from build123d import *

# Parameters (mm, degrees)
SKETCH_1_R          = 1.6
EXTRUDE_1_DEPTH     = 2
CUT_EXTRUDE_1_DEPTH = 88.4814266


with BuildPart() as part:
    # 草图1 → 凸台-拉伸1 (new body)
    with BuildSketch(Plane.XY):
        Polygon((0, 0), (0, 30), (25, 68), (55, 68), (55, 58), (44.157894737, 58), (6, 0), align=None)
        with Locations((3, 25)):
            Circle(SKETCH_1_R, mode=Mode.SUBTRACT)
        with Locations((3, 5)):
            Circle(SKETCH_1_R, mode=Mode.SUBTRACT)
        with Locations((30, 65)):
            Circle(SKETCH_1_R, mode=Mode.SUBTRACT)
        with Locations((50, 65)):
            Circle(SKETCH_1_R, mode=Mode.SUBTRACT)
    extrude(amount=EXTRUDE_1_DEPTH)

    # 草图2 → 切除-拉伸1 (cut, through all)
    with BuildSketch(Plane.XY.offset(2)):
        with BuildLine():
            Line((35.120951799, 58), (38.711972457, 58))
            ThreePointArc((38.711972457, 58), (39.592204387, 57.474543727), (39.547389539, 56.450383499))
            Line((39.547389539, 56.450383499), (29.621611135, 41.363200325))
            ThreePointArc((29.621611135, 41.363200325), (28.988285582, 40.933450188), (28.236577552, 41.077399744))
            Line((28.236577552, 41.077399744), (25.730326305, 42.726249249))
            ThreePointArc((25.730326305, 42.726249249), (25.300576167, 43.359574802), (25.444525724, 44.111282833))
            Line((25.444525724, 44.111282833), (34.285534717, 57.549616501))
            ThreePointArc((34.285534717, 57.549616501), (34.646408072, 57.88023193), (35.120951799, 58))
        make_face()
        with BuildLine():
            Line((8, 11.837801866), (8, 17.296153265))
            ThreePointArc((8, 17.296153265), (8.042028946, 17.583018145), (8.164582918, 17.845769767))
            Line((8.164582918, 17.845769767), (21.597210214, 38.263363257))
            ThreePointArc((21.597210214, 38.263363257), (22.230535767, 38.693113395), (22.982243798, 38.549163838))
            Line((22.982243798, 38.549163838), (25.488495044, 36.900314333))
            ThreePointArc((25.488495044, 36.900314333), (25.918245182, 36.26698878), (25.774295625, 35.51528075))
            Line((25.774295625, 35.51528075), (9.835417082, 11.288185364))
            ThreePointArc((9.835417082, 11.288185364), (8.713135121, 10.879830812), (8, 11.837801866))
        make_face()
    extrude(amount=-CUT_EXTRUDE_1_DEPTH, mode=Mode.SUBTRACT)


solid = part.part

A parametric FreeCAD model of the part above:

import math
import FreeCAD as App
import Part
import Sketcher
from FreeCAD import Vector


def add_polygon(sketch, points):
    """Adds a closed chain of lines whose ends are joined by coincident constraints."""
    first, n = sketch.GeometryCount, len(points)
    for a, b in zip(points, points[1:] + points[:1]):
        sketch.addGeometry(Part.LineSegment(App.Vector(*a, 0), App.Vector(*b, 0)), False)
    for i in range(n):
        sketch.addConstraint(Sketcher.Constraint("Coincident", first + i, 2, first + (i + 1) % n, 1))

doc = App.newDocument("Part")
body = doc.addObject("PartDesign::Body", "Body")

sketch1 = body.newObject("Sketcher::SketchObject", "Sketch")
sketch1.AttachmentSupport = (doc.getObject("XY_Plane"), [""])
sketch1.MapMode = "FlatFace"
add_polygon(sketch1, [(0, 30), (0, 0), (6, 0), (44.157895, 58), (55, 58), (55, 68), (25, 68)])
sketch1.addGeometry(Part.Circle(Vector(3, 5, 0), Vector(0, 0, 1), 1.6), False)
sketch1.addGeometry(Part.Circle(Vector(3, 25, 0), Vector(0, 0, 1), 1.6), False)
sketch1.addGeometry(Part.Circle(Vector(50, 65, 0), Vector(0, 0, 1), 1.6), False)
sketch1.addGeometry(Part.Circle(Vector(30, 65, 0), Vector(0, 0, 1), 1.6), False)
sketch1.addConstraint([
    Sketcher.Constraint("Vertical", 0),
    Sketcher.Constraint("Horizontal", 1),
    Sketcher.Constraint("Horizontal", 3),
    Sketcher.Constraint("Vertical", 4),
    Sketcher.Constraint("Horizontal", 5),
    Sketcher.Constraint("Coincident", 0, 2, -1, 1),
    Sketcher.Constraint("Equal", 7, 8),
    Sketcher.Constraint("Equal", 8, 9),
    Sketcher.Constraint("Equal", 9, 10),
    Sketcher.Constraint("Parallel", 2, 6),
    Sketcher.Constraint("Horizontal", 9, 3, 10, 3),
    Sketcher.Constraint("Vertical", 7, 3, 8, 3),
    Sketcher.Constraint("Equal", 5, 0),
    Sketcher.Constraint("Diameter", 7, 3.2),
    Sketcher.Constraint("DistanceX", 1, 1, 1, 2, 6.0),
    Sketcher.Constraint("DistanceX", 5, 2, 5, 1, 30.0),
    Sketcher.Constraint("DistanceY", 4, 1, 4, 2, 10.0),
    Sketcher.Constraint("DistanceX", -1, 1, 7, 3, 3.0),
    Sketcher.Constraint("DistanceY", -1, 1, 7, 3, 5.0),
    Sketcher.Constraint("DistanceY", -1, 1, 8, 3, 25.0),
    Sketcher.Constraint("DistanceX", -1, 1, 9, 3, 50.0),
    Sketcher.Constraint("DistanceY", -1, 1, 9, 3, 65.0),
    Sketcher.Constraint("DistanceX", -1, 1, 10, 3, 30.0),
    Sketcher.Constraint("DistanceY", -1, 1, 2, 2, 58.0),
    Sketcher.Constraint("DistanceX", -1, 1, 3, 2, 55.0),
])
pad1 = body.newObject("PartDesign::Pad", "Pad")
pad1.Profile = sketch1
pad1.Length = 2

sketch2 = body.newObject("Sketcher::SketchObject", "Sketch001")
sketch2.AttachmentSupport = (doc.getObject("XY_Plane"), [""])
sketch2.MapMode = "FlatFace"
sketch2.AttachmentOffset = App.Placement(Vector(0, 0, 2), App.Rotation())
sketch2.addGeometry([
    Part.LineSegment(Vector(38.711972, 58, 0), Vector(35.120952, 58, 0)),
    Part.ArcOfCircle(Part.Circle(Vector(35.120952, 57, 0), Vector(0, 0, 1), 1), math.radians(90), math.radians(146.659293)),
    Part.LineSegment(Vector(34.285535, 57.549617, 0), Vector(25.444526, 44.111283, 0)),
    Part.ArcOfCircle(Part.Circle(Vector(26.279943, 43.561666, 0), Vector(0, 0, 1), 1), math.radians(146.659293), math.radians(236.659293)),
    Part.LineSegment(Vector(25.730326, 42.726249, 0), Vector(28.236578, 41.0774, 0)),
    Part.ArcOfCircle(Part.Circle(Vector(28.786194, 41.912817, 0), Vector(0, 0, 1), 1), math.radians(-123.340707), math.radians(-33.340707)),
    Part.LineSegment(Vector(29.621611, 41.3632, 0), Vector(39.54739, 56.450383, 0)),
    Part.ArcOfCircle(Part.Circle(Vector(38.711972, 57, 0), Vector(0, 0, 1), 1), math.radians(-33.340707), math.radians(90)),
    Part.LineSegment(Vector(8, 17.296153, 0), Vector(8, 11.837802, 0)),
    Part.ArcOfCircle(Part.Circle(Vector(9, 11.837802, 0), Vector(0, 0, 1), 1), math.radians(-180), math.radians(-33.340707)),
    Part.LineSegment(Vector(9.835417, 11.288185, 0), Vector(25.774296, 35.515281, 0)),
    Part.ArcOfCircle(Part.Circle(Vector(24.938879, 36.064897, 0), Vector(0, 0, 1), 1), math.radians(-33.340707), math.radians(56.659293)),
    Part.LineSegment(Vector(25.488495, 36.900314, 0), Vector(22.982244, 38.549164, 0)),
    Part.ArcOfCircle(Part.Circle(Vector(22.432627, 37.713747, 0), Vector(0, 0, 1), 1), math.radians(56.659293), math.radians(146.659293)),
    Part.LineSegment(Vector(21.59721, 38.263363, 0), Vector(8.164583, 17.84577, 0)),
    Part.ArcOfCircle(Part.Circle(Vector(9, 17.296153, 0), Vector(0, 0, 1), 1), math.radians(146.659293), math.radians(180)),
], False)
sketch2.addConstraint([
    Sketcher.Constraint("Tangent", 0, 2, 1, 1),
    Sketcher.Constraint("Tangent", 1, 2, 2, 1),
    Sketcher.Constraint("Tangent", 2, 2, 3, 1),
    Sketcher.Constraint("Tangent", 3, 2, 4, 1),
    Sketcher.Constraint("Tangent", 4, 2, 5, 1),
    Sketcher.Constraint("Tangent", 5, 2, 6, 1),
    Sketcher.Constraint("Tangent", 6, 2, 7, 1),
    Sketcher.Constraint("Tangent", 7, 2, 0, 1),
    Sketcher.Constraint("Tangent", 8, 2, 9, 1),
    Sketcher.Constraint("Tangent", 9, 2, 10, 1),
    Sketcher.Constraint("Tangent", 10, 2, 11, 1),
    Sketcher.Constraint("Tangent", 11, 2, 12, 1),
    Sketcher.Constraint("Tangent", 12, 2, 13, 1),
    Sketcher.Constraint("Tangent", 13, 2, 14, 1),
    Sketcher.Constraint("Tangent", 14, 2, 15, 1),
    Sketcher.Constraint("Tangent", 15, 2, 8, 1),
    Sketcher.Constraint("Horizontal", 0),
    Sketcher.Constraint("Vertical", 8),
    Sketcher.Constraint("Equal", 1, 3),
    Sketcher.Constraint("Equal", 3, 5),
    Sketcher.Constraint("Equal", 5, 7),
    Sketcher.Constraint("Equal", 7, 9),
    Sketcher.Constraint("Equal", 9, 11),
    Sketcher.Constraint("Equal", 11, 13),
    Sketcher.Constraint("Equal", 13, 15),
    Sketcher.Constraint("Perpendicular", 2, 4),
    Sketcher.Constraint("Perpendicular", 4, 6),
    Sketcher.Constraint("Parallel", 6, 10),
    Sketcher.Constraint("Perpendicular", 10, 12),
    Sketcher.Constraint("Perpendicular", 12, 14),
    Sketcher.Constraint("Equal", 4, 12),
    Sketcher.Constraint("Radius", 1, 1.0),
    Sketcher.Constraint("Distance", 4, 3.0),
    Sketcher.Constraint("Distance", 10, 29.0),
    Sketcher.Constraint("DistanceY", -1, 1, 1, 3, 57.0),
    Sketcher.Constraint("DistanceX", -1, 1, 9, 3, 9.0),
    Sketcher.Constraint("Distance", 14, 24.44),
    Sketcher.Constraint("DistanceY", -1, 1, 9, 3, 11.837802),
    Sketcher.Constraint("DistanceY", -1, 1, 4, 2, 41.0774),
    Sketcher.Constraint("DistanceX", 13, 3, 2, 2, 3.011898),
])
pocket1 = body.newObject("PartDesign::Pocket", "Pocket")
pocket1.Profile = sketch2
pocket1.Type = "ThroughAll"

doc.recompute()
